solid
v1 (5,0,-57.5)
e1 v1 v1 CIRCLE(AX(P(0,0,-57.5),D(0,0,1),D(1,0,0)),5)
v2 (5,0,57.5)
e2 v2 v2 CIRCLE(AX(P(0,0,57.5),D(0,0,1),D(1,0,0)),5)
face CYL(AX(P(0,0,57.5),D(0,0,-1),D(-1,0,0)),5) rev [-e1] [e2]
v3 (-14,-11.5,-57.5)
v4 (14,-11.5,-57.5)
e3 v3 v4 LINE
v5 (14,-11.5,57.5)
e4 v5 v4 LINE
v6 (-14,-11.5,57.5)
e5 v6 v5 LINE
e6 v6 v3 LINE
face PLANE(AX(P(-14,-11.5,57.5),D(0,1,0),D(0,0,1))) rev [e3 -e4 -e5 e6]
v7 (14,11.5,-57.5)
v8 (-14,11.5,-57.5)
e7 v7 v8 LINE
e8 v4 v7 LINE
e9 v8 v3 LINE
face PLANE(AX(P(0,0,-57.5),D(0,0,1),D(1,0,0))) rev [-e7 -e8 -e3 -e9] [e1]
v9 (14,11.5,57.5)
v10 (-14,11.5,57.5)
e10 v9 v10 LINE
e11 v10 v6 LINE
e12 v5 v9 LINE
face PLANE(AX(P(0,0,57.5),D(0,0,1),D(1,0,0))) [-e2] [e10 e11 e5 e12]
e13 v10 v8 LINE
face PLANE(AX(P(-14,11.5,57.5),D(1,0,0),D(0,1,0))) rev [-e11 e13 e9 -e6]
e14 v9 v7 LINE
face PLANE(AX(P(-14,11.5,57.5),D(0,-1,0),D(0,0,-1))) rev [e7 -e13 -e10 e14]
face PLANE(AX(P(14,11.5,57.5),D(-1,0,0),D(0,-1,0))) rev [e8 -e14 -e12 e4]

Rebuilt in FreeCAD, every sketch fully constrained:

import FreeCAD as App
import Part
import Sketcher

V = App.Vector

doc = App.newDocument("Part")
params = doc.addObject("Spreadsheet::Sheet", "Params")
for row, (alias, value) in enumerate([
    ("sketch1_diameter", "10 mm"),
    ("sketch1_width", "28 mm"),
    ("sketch1_height", "23 mm"),
    ("pad1_length", "115 mm"),
], start=1):
    params.set(f"A{row}", alias)
    params.set(f"B{row}", "=" + value)
    params.setAlias(f"B{row}", alias)

body = doc.addObject("PartDesign::Body", "Body")

# Sketch on XY plane
sketch1 = body.newObject("Sketcher::SketchObject", "Sketch")
sketch1.AttachmentSupport = (doc.getObject("XY_Plane"), [""])
sketch1.MapMode = "FlatFace"
sketch1.addGeometry([
    Part.LineSegment(V(-14, 11.5, 0), V(-14, -11.5, 0)),  # 0
    Part.LineSegment(V(-14, -11.5, 0), V(14, -11.5, 0)),  # 1
    Part.LineSegment(V(14, -11.5, 0), V(14, 11.5, 0)),  # 2
    Part.LineSegment(V(14, 11.5, 0), V(-14, 11.5, 0)),  # 3
    Part.Circle(V(0, 0, 0), V(0, 0, 1), 5),  # 4
], False)
sketch1.addConstraint([
    Sketcher.Constraint("Coincident", 0, 2, 1, 1),
    Sketcher.Constraint("Coincident", 1, 2, 2, 1),
    Sketcher.Constraint("Coincident", 2, 2, 3, 1),
    Sketcher.Constraint("Coincident", 3, 2, 0, 1),
    Sketcher.Constraint("Vertical", 0),
    Sketcher.Constraint("Horizontal", 1),
    Sketcher.Constraint("Vertical", 2),
    Sketcher.Constraint("Horizontal", 3),
    Sketcher.Constraint("Coincident", 4, 3, -1, 1),
    Sketcher.Constraint("Symmetric", 0, 2, 2, 2, -1, 1),
    Sketcher.Constraint("Diameter", 4, 10.0),
    Sketcher.Constraint("DistanceX", 1, 1, 1, 2, 28.0),
    Sketcher.Constraint("DistanceY", 0, 2, 0, 1, 23.0),
])
sketch1.setExpression("Constraints[10]", "Params.sketch1_diameter")
sketch1.setExpression("Constraints[11]", "Params.sketch1_width")
sketch1.setExpression("Constraints[12]", "Params.sketch1_height")
pad1 = body.newObject("PartDesign::Pad", "Pad")
pad1.Profile = sketch1
pad1.setExpression("Length", "Params.pad1_length")
pad1.Midplane = True

doc.recompute()
